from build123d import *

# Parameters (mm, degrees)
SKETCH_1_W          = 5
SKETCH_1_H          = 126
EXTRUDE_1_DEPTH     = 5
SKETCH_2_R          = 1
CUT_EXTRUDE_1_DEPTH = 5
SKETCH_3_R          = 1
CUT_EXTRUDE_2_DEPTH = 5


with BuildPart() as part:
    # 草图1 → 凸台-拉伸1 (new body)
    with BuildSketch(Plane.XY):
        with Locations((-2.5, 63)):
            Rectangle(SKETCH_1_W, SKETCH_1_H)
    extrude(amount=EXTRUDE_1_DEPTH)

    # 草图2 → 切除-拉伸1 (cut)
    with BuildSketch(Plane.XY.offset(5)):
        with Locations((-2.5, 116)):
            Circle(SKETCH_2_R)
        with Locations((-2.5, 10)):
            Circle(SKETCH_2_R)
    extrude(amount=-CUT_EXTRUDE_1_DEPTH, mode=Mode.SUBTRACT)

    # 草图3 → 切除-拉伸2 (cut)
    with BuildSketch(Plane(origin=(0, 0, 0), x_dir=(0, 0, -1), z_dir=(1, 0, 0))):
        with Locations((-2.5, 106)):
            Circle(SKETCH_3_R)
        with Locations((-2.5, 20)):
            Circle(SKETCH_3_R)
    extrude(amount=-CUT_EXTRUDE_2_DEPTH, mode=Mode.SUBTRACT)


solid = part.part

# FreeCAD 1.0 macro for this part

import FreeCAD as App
import Part
import Sketcher
from FreeCAD import Vector


def add_polygon(sketch, points):
    """Adds a closed chain of lines whose ends are joined by coincident constraints."""
    first, n = sketch.GeometryCount, len(points)
    for a, b in zip(points, points[1:] + points[:1]):
        sketch.addGeometry(Part.LineSegment(App.Vector(*a, 0), App.Vector(*b, 0)), False)
    for i in range(n):
        sketch.addConstraint(Sketcher.Constraint("Coincident", first + i, 2, first + (i + 1) % n, 1))

doc = App.newDocument("Part")
params = doc.addObject("Spreadsheet::Sheet", "Params")
for row, (alias, value) in enumerate([
    ("sketch1_width", "5 mm"),
    ("sketch1_height", "126 mm"),
    ("pad1_length", "5 mm"),
    ("sketch2_diameter", "2 mm"),
    ("pocket1_length", "5 mm"),
    ("sketch3_diameter", "2 mm"),
    ("pocket2_length", "5 mm"),
], start=1):
    params.set(f"A{row}", alias)
    params.set(f"B{row}", "=" + value)
    params.setAlias(f"B{row}", alias)

body = doc.addObject("PartDesign::Body", "Body")

sketch1 = body.newObject("Sketcher::SketchObject", "Sketch")
sketch1.AttachmentSupport = (doc.getObject("XY_Plane"), [""])
sketch1.MapMode = "FlatFace"
add_polygon(sketch1, [(-5, 126), (-5, 0), (0, 0), (0, 126)])
sketch1.addConstraint([
    Sketcher.Constraint("Vertical", 0),
    Sketcher.Constraint("Horizontal", 1),
    Sketcher.Constraint("Vertical", 2),
    Sketcher.Constraint("Horizontal", 3),
    Sketcher.Constraint("Coincident", 1, 2, -1, 1),
    Sketcher.Constraint("DistanceX", 1, 1, 1, 2, 5.0),
    Sketcher.Constraint("DistanceY", 0, 2, 0, 1, 126.0),
])
sketch1.setExpression("Constraints[9]", "Params.sketch1_width")
sketch1.setExpression("Constraints[10]", "Params.sketch1_height")
pad1 = body.newObject("PartDesign::Pad", "Pad")
pad1.Profile = sketch1
pad1.setExpression("Length", "Params.pad1_length")

sketch2 = body.newObject("Sketcher::SketchObject", "Sketch001")
sketch2.AttachmentSupport = (doc.getObject("XY_Plane"), [""])
sketch2.MapMode = "FlatFace"
sketch2.AttachmentOffset = App.Placement(Vector(0, 0, 5), App.Rotation())
sketch2.addGeometry([
    Part.Circle(Vector(-2.5, 116, 0), Vector(0, 0, 1), 1),
    Part.Circle(Vector(-2.5, 10, 0), Vector(0, 0, 1), 1),
], False)
sketch2.addConstraint([
    Sketcher.Constraint("Equal", 0, 1),
    Sketcher.Constraint("Vertical", 0, 3, 1, 3),
    Sketcher.Constraint("Diameter", 0, 2.0),
    Sketcher.Constraint("DistanceY", -1, 1, 0, 3, 116.0),
    Sketcher.Constraint("DistanceY", -1, 1, 1, 3, 10.0),
    Sketcher.Constraint("DistanceX", 0, 3, -1, 1, 2.5),
])
sketch2.setExpression("Constraints[2]", "Params.sketch2_diameter")
pocket1 = body.newObject("PartDesign::Pocket", "Pocket")
pocket1.Profile = sketch2
pocket1.setExpression("Length", "Params.pocket1_length")

sketch3 = body.newObject("Sketcher::SketchObject", "Sketch002")
sketch3.AttachmentSupport = (doc.getObject("YZ_Plane"), [""])
sketch3.MapMode = "FlatFace"
sketch3.addGeometry([
    Part.Circle(Vector(106, 2.5, 0), Vector(0, 0, 1), 1),
    Part.Circle(Vector(20, 2.5, 0), Vector(0, 0, 1), 1),
], False)
sketch3.addConstraint([
    Sketcher.Constraint("Equal", 0, 1),
    Sketcher.Constraint("Horizontal", 0, 3, 1, 3),
    Sketcher.Constraint("Diameter", 0, 2.0),
    Sketcher.Constraint("DistanceX", -1, 1, 0, 3, 106.0),
    Sketcher.Constraint("DistanceX", -1, 1, 1, 3, 20.0),
    Sketcher.Constraint("DistanceY", -1, 1, 0, 3, 2.5),
])
sketch3.setExpression("Constraints[2]", "Params.sketch3_diameter")
pocket2 = body.newObject("PartDesign::Pocket", "Pocket001")
pocket2.Profile = sketch3
pocket2.setExpression("Length", "Params.pocket2_length")

doc.recompute()
